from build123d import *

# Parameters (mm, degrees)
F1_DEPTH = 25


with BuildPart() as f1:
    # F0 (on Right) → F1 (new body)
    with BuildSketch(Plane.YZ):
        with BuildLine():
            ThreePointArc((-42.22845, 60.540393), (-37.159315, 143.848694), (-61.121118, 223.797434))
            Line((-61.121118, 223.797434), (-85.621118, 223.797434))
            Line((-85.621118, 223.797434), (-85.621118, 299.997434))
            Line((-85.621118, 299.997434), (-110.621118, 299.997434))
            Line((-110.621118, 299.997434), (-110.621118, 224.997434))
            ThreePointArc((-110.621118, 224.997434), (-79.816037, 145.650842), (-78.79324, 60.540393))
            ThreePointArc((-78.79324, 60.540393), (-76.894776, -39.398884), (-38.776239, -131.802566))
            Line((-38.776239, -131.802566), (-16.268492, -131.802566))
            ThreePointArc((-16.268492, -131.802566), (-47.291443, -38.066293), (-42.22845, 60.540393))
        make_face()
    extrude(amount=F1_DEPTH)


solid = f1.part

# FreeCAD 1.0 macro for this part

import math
import FreeCAD as App
import Part
import Sketcher
Q = App.Units.Quantity

doc = App.newDocument("Part")
body = doc.addObject("PartDesign::Body", "Body")

sketch1 = body.newObject("Sketcher::SketchObject", "Sketch")
sketch1.AttachmentSupport = (doc.getObject("YZ_Plane"), [""])
sketch1.MapMode = "FlatFace"
sketch1.addGeometry([
    Part.ArcOfCircle(Part.Circle(App.Vector(-274, 116, 0), App.Vector(0, 0, 1), 238), math.radians(-14), math.radians(27)),
    Part.LineSegment(App.Vector(-61, 224, 0), App.Vector(-86, 224, 0)),
    Part.LineSegment(App.Vector(-86, 224, 0), App.Vector(-86, 300, 0)),
    Part.LineSegment(App.Vector(-86, 300, 0), App.Vector(-111, 300, 0)),
    Part.LineSegment(App.Vector(-111, 300, 0), App.Vector(-111, 225, 0)),
    Part.ArcOfCircle(Part.Circle(App.Vector(-314, 100, 0), App.Vector(0, 0, 1), 239), math.radians(-10), math.radians(31)),
    Part.ArcOfCircle(Part.Circle(App.Vector(188, 16, 0), App.Vector(0, 0, 1), 270), math.radians(170), math.radians(213)),
    Part.LineSegment(App.Vector(-39, -132, 0), App.Vector(-16, -132, 0)),
    Part.ArcOfCircle(Part.Circle(App.Vector(218, -2, 0), App.Vector(0, 0, 1), 268), math.radians(166), math.radians(209)),
], False)
sketch1.addConstraint([
    Sketcher.Constraint("Coincident", 0, 2, 1, 1),
    Sketcher.Constraint("Coincident", 1, 2, 2, 1),
    Sketcher.Constraint("Coincident", 2, 2, 3, 1),
    Sketcher.Constraint("Coincident", 3, 2, 4, 1),
    Sketcher.Constraint("Coincident", 4, 2, 5, 2),
    Sketcher.Constraint("Tangent", 5, 1, 6, 1),
    Sketcher.Constraint("Coincident", 6, 2, 7, 1),
    Sketcher.Constraint("Coincident", 7, 2, 8, 2),
    Sketcher.Constraint("Tangent", 8, 1, 0, 1),
    Sketcher.Constraint("Horizontal", 1),
    Sketcher.Constraint("Vertical", 2),
    Sketcher.Constraint("Horizontal", 3),
    Sketcher.Constraint("Vertical", 4),
    Sketcher.Constraint("Horizontal", 7),
    Sketcher.Constraint("Horizontal", 5, 1, 8, 1),
    Sketcher.Constraint("DistanceX", 3, 2, 3, 1, Q("25 mm")),
    Sketcher.Constraint("DistanceY", 4, 2, 4, 1, Q("75 mm")),
    Sketcher.Constraint("DistanceX", 1, 2, 1, 1, Q("24.5 mm")),
    Sketcher.Constraint("DistanceY", 2, 1, 2, 2, Q("76.2 mm")),
    Sketcher.Constraint("DistanceY", 6, 2, 0, 2, Q("355.6 mm")),
    Sketcher.Constraint("Radius", 0, Q("238.35911 mm")),
    Sketcher.Constraint("Radius", 5, Q("238.828325 mm")),
    Sketcher.Constraint("Radius", 6, Q("270.071225 mm")),
    Sketcher.Constraint("Radius", 8, Q("267.730665 mm")),
    Sketcher.Constraint("DistanceX", 5, 1, 6, 2, Q("40.017001 mm")),
    Sketcher.Constraint("DistanceX", -1, 1, 6, 3, Q("187.5146 mm")),
    Sketcher.Constraint("DistanceX", 7, 1, 7, 2, Q("22.507747 mm")),
    Sketcher.Constraint("DistanceY", -1, 1, 0, 3, Q("116.44782 mm")),
    Sketcher.Constraint("DistanceY", 8, 3, -1, 1, Q("2.256168 mm")),
])
pad1 = body.newObject("PartDesign::Pad", "Pad")
pad1.Profile = sketch1
pad1.Length = 25

doc.recompute()
